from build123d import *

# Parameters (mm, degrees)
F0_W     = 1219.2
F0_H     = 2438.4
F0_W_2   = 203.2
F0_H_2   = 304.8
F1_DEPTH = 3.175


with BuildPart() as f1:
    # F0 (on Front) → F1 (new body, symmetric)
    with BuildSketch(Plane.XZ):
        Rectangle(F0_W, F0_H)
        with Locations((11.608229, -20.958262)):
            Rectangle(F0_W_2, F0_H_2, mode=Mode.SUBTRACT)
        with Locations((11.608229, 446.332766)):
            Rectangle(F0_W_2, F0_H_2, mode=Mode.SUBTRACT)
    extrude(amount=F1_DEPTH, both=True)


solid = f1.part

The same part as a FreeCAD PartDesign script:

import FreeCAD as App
import Part
import Sketcher

V = App.Vector
Q = App.Units.Quantity

doc = App.newDocument("Part")
body = doc.addObject("PartDesign::Body", "Body")

# Sketch on XZ plane
sketch1 = doc.addObject("Sketcher::SketchObject", "Sketch")
body.addObject(sketch1)
sketch1.AttachmentSupport = (doc.XZ_Plane, [""])
sketch1.MapMode = "FlatFace"
sketch1.addGeometry([
    Part.LineSegment(V(-610, 1219, 0), V(-610, -1219, 0)),  # 0
    Part.LineSegment(V(-610, -1219, 0), V(610, -1219, 0)),  # 1
    Part.LineSegment(V(610, -1219, 0), V(610, 1219, 0)),  # 2
    Part.LineSegment(V(610, 1219, 0), V(-610, 1219, 0)),  # 3
    Part.LineSegment(V(113, -173, 0), V(-90, -173, 0)),  # 4
    Part.LineSegment(V(-90, -173, 0), V(-90, 131, 0)),  # 5
    Part.LineSegment(V(-90, 131, 0), V(113, 131, 0)),  # 6
    Part.LineSegment(V(113, 131, 0), V(113, -173, 0)),  # 7
    Part.LineSegment(V(113, 294, 0), V(-90, 294, 0)),  # 8
    Part.LineSegment(V(-90, 294, 0), V(-90, 599, 0)),  # 9
    Part.LineSegment(V(-90, 599, 0), V(113, 599, 0)),  # 10
    Part.LineSegment(V(113, 599, 0), V(113, 294, 0)),  # 11
], False)
sketch1.addConstraint([
    Sketcher.Constraint("Coincident", 0, 2, 1, 1),
    Sketcher.Constraint("Coincident", 1, 2, 2, 1),
    Sketcher.Constraint("Coincident", 2, 2, 3, 1),
    Sketcher.Constraint("Coincident", 3, 2, 0, 1),
    Sketcher.Constraint("Coincident", 4, 2, 5, 1),
    Sketcher.Constraint("Coincident", 5, 2, 6, 1),
    Sketcher.Constraint("Coincident", 6, 2, 7, 1),
    Sketcher.Constraint("Coincident", 7, 2, 4, 1),
    Sketcher.Constraint("Coincident", 8, 2, 9, 1),
    Sketcher.Constraint("Coincident", 9, 2, 10, 1),
    Sketcher.Constraint("Coincident", 10, 2, 11, 1),
    Sketcher.Constraint("Coincident", 11, 2, 8, 1),
    Sketcher.Constraint("Vertical", 0),
    Sketcher.Constraint("Horizontal", 1),
    Sketcher.Constraint("Vertical", 2),
    Sketcher.Constraint("Horizontal", 3),
    Sketcher.Constraint("Horizontal", 4),
    Sketcher.Constraint("Vertical", 5),
    Sketcher.Constraint("Horizontal", 6),
    Sketcher.Constraint("Vertical", 7),
    Sketcher.Constraint("Horizontal", 8),
    Sketcher.Constraint("Vertical", 9),
    Sketcher.Constraint("Horizontal", 10),
    Sketcher.Constraint("Vertical", 11),
    Sketcher.Constraint("Symmetric", 0, 2, 2, 2, -1, 1),
    Sketcher.Constraint("Vertical", 5, 2, 8, 2),
    Sketcher.Constraint("Vertical", 7, 2, 10, 2),
    Sketcher.Constraint("Equal", 7, 9),
    Sketcher.Constraint("DistanceX", 1, 1, 1, 2, Q("48 in")),
    Sketcher.Constraint("DistanceX", 4, 2, 4, 1, Q("8 in")),
    Sketcher.Constraint("DistanceY", 0, 2, 0, 1, Q("96 in")),
    Sketcher.Constraint("DistanceY", 5, 1, 5, 2, Q("12 in")),
    Sketcher.Constraint("DistanceX", 4, 2, -1, 1, 89.991771),
    Sketcher.Constraint("DistanceY", 4, 2, -1, 1, 173.358262),
    Sketcher.Constraint("DistanceY", 5, 2, 8, 2, 162.491028),
])
pad1 = doc.addObject("PartDesign::Pad", "Pad")
body.addObject(pad1)
pad1.Profile = sketch1
pad1.Length = Q("0.25 in")
pad1.Midplane = True

doc.recompute()
